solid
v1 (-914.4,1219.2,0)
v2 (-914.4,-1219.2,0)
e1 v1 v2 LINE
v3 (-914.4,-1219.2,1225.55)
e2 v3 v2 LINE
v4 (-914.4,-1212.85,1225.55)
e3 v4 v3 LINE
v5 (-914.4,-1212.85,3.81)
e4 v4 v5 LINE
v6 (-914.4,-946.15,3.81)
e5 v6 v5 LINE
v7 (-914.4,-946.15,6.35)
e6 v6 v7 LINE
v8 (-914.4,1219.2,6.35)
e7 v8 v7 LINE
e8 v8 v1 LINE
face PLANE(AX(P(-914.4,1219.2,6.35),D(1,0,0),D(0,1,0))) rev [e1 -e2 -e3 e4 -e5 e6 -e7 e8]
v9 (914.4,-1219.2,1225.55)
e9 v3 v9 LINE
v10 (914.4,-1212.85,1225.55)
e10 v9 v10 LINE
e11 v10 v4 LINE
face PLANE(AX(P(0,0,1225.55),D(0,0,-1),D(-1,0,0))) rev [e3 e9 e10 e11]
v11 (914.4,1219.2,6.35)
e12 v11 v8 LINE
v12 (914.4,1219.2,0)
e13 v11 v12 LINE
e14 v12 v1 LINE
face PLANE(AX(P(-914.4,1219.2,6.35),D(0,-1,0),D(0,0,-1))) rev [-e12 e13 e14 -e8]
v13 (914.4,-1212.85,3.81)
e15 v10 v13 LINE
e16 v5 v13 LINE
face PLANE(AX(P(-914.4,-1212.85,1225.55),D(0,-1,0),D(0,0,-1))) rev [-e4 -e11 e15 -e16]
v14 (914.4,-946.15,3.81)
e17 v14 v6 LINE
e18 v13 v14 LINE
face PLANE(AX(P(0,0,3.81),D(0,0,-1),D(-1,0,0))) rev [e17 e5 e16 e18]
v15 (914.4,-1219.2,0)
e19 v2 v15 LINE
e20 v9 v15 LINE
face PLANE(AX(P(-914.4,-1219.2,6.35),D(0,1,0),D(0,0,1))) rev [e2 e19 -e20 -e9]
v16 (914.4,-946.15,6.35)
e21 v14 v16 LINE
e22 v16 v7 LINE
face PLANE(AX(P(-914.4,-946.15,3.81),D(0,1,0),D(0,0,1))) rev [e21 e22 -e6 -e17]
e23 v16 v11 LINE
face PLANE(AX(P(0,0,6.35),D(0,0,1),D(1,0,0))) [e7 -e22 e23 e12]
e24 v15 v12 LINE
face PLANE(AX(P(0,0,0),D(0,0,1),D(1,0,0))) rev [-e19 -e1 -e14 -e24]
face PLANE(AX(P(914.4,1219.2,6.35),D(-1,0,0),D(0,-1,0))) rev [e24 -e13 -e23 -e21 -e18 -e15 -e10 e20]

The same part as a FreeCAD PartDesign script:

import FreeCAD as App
import Part
import Sketcher
Q = App.Units.Quantity


def add_polygon(sketch, points):
    """Adds a closed chain of lines whose ends are joined by coincident constraints."""
    first, n = sketch.GeometryCount, len(points)
    for a, b in zip(points, points[1:] + points[:1]):
        sketch.addGeometry(Part.LineSegment(App.Vector(*a, 0), App.Vector(*b, 0)), False)
    for i in range(n):
        sketch.addConstraint(Sketcher.Constraint("Coincident", first + i, 2, first + (i + 1) % n, 1))

doc = App.newDocument("Part")
body = doc.addObject("PartDesign::Body", "Body")

sketch1 = body.newObject("Sketcher::SketchObject", "Sketch")
sketch1.AttachmentSupport = (doc.getObject("XY_Plane"), [""])
sketch1.MapMode = "FlatFace"
add_polygon(sketch1, [(-914, 1219), (-914, -1219), (914, -1219), (914, 1219)])
sketch1.addConstraint(Sketcher.Constraint("Vertical", 0))
sketch1.addConstraint(Sketcher.Constraint("Horizontal", 1))
sketch1.addConstraint(Sketcher.Constraint("Vertical", 2))
sketch1.addConstraint(Sketcher.Constraint("Horizontal", 3))
sketch1.addConstraint(Sketcher.Constraint("Symmetric", 0, 2, 2, 2, -1, 1))
sketch1.addConstraint(Sketcher.Constraint("DistanceX", 1, 1, 1, 2, Q("72 in")))
sketch1.addConstraint(Sketcher.Constraint("DistanceY", 0, 2, 0, 1, Q("96 in")))
pad1 = body.newObject("PartDesign::Pad", "Pad")
pad1.Profile = sketch1
pad1.Length = Q("0.25 in")

sketch2 = body.newObject("Sketcher::SketchObject", "Sketch001")
sketch2.AttachmentSupport = (doc.getObject("XY_Plane"), [""])
sketch2.MapMode = "FlatFace"
sketch2.AttachmentOffset = App.Placement(App.Vector(0, 0, 0.25 * 25.4), App.Rotation())
add_polygon(sketch2, [(-914, -1213), (-914, -1219), (914, -1219), (914, -1213)])
sketch2.addConstraint(Sketcher.Constraint("Vertical", 0))
sketch2.addConstraint(Sketcher.Constraint("Horizontal", 1))
sketch2.addConstraint(Sketcher.Constraint("Vertical", 2))
sketch2.addConstraint(Sketcher.Constraint("Horizontal", 3))
sketch2.addConstraint(Sketcher.Constraint("DistanceX", 1, 1, 1, 2, Q("72 in")))
sketch2.addConstraint(Sketcher.Constraint("DistanceX", 0, 2, -1, 1, Q("36 in")))
sketch2.addConstraint(Sketcher.Constraint("DistanceY", 0, 2, -1, 1, Q("48 in")))
sketch2.addConstraint(Sketcher.Constraint("DistanceY", 0, 2, 0, 1, Q("0.25 in")))
pad2 = body.newObject("PartDesign::Pad", "Pad001")
pad2.Profile = sketch2
pad2.Length = Q("48 in")

sketch3 = body.newObject("Sketcher::SketchObject", "Sketch002")
sketch3.AttachmentSupport = (doc.getObject("XY_Plane"), [""])
sketch3.MapMode = "FlatFace"
sketch3.AttachmentOffset = App.Placement(App.Vector(0, 0, 0.25 * 25.4), App.Rotation())
add_polygon(sketch3, [(-914, -946), (-914, -1213), (914, -1213), (914, -946)])
sketch3.addConstraint(Sketcher.Constraint("Vertical", 0))
sketch3.addConstraint(Sketcher.Constraint("Horizontal", 1))
sketch3.addConstraint(Sketcher.Constraint("Vertical", 2))
sketch3.addConstraint(Sketcher.Constraint("Horizontal", 3))
sketch3.addConstraint(Sketcher.Constraint("DistanceX", 1, 1, 1, 2, Q("72 in")))
sketch3.addConstraint(Sketcher.Constraint("DistanceY", 0, 2, 0, 1, Q("10.5 in")))
sketch3.addConstraint(Sketcher.Constraint("DistanceX", 0, 2, -1, 1, Q("36 in")))
sketch3.addConstraint(Sketcher.Constraint("DistanceY", 0, 2, -1, 1, Q("47.75 in")))
pocket1 = body.newObject("PartDesign::Pocket", "Pocket")
pocket1.Profile = sketch3
pocket1.Length = Q("0.1 in")

doc.recompute()
